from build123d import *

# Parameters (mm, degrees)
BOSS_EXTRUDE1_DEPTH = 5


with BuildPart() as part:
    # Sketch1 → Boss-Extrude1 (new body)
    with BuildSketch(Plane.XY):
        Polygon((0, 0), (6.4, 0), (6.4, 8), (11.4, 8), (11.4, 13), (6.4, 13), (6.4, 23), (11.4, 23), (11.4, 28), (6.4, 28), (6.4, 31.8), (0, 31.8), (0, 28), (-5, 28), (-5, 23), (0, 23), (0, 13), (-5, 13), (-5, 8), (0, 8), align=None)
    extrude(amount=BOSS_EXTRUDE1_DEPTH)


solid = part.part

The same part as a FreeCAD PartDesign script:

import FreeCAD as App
import Part
import Sketcher

V = App.Vector

doc = App.newDocument("Part")
body = doc.addObject("PartDesign::Body", "Body")

# Sketch on XY plane
sketch1 = body.newObject("Sketcher::SketchObject", "Sketch")
sketch1.AttachmentSupport = (doc.getObject("XY_Plane"), [""])
sketch1.MapMode = "FlatFace"
sketch1.addGeometry(Part.LineSegment(V(0, 0, 0), V(6.4, 0, 0)), False)
sketch1.addGeometry(Part.LineSegment(V(6.4, 0, 0), V(6.4, 8, 0)), False)
sketch1.addGeometry(Part.LineSegment(V(6.4, 8, 0), V(11.4, 8, 0)), False)
sketch1.addGeometry(Part.LineSegment(V(11.4, 8, 0), V(11.4, 13, 0)), False)
sketch1.addGeometry(Part.LineSegment(V(11.4, 13, 0), V(6.4, 13, 0)), False)
sketch1.addGeometry(Part.LineSegment(V(6.4, 13, 0), V(6.4, 23, 0)), False)
sketch1.addGeometry(Part.LineSegment(V(6.4, 23, 0), V(11.4, 23, 0)), False)
sketch1.addGeometry(Part.LineSegment(V(11.4, 23, 0), V(11.4, 28, 0)), False)
sketch1.addGeometry(Part.LineSegment(V(11.4, 28, 0), V(6.4, 28, 0)), False)
sketch1.addGeometry(Part.LineSegment(V(6.4, 28, 0), V(6.4, 31.8, 0)), False)
sketch1.addGeometry(Part.LineSegment(V(6.4, 31.8, 0), V(0, 31.8, 0)), False)
sketch1.addGeometry(Part.LineSegment(V(0, 31.8, 0), V(0, 28, 0)), False)
sketch1.addGeometry(Part.LineSegment(V(0, 28, 0), V(-5, 28, 0)), False)
sketch1.addGeometry(Part.LineSegment(V(-5, 28, 0), V(-5, 23, 0)), False)
sketch1.addGeometry(Part.LineSegment(V(-5, 23, 0), V(0, 23, 0)), False)
sketch1.addGeometry(Part.LineSegment(V(0, 23, 0), V(0, 13, 0)), False)
sketch1.addGeometry(Part.LineSegment(V(0, 13, 0), V(-5, 13, 0)), False)
sketch1.addGeometry(Part.LineSegment(V(-5, 13, 0), V(-5, 8, 0)), False)
sketch1.addGeometry(Part.LineSegment(V(-5, 8, 0), V(0, 8, 0)), False)
sketch1.addGeometry(Part.LineSegment(V(0, 8, 0), V(0, 0, 0)), False)
sketch1.addConstraint(Sketcher.Constraint("Coincident", 0, 2, 1, 1))
sketch1.addConstraint(Sketcher.Constraint("Coincident", 1, 2, 2, 1))
sketch1.addConstraint(Sketcher.Constraint("Coincident", 2, 2, 3, 1))
sketch1.addConstraint(Sketcher.Constraint("Coincident", 3, 2, 4, 1))
sketch1.addConstraint(Sketcher.Constraint("Coincident", 4, 2, 5, 1))
sketch1.addConstraint(Sketcher.Constraint("Coincident", 5, 2, 6, 1))
sketch1.addConstraint(Sketcher.Constraint("Coincident", 6, 2, 7, 1))
sketch1.addConstraint(Sketcher.Constraint("Coincident", 7, 2, 8, 1))
sketch1.addConstraint(Sketcher.Constraint("Coincident", 8, 2, 9, 1))
sketch1.addConstraint(Sketcher.Constraint("Coincident", 9, 2, 10, 1))
sketch1.addConstraint(Sketcher.Constraint("Coincident", 10, 2, 11, 1))
sketch1.addConstraint(Sketcher.Constraint("Coincident", 11, 2, 12, 1))
sketch1.addConstraint(Sketcher.Constraint("Coincident", 12, 2, 13, 1))
sketch1.addConstraint(Sketcher.Constraint("Coincident", 13, 2, 14, 1))
sketch1.addConstraint(Sketcher.Constraint("Coincident", 14, 2, 15, 1))
sketch1.addConstraint(Sketcher.Constraint("Coincident", 15, 2, 16, 1))
sketch1.addConstraint(Sketcher.Constraint("Coincident", 16, 2, 17, 1))
sketch1.addConstraint(Sketcher.Constraint("Coincident", 17, 2, 18, 1))
sketch1.addConstraint(Sketcher.Constraint("Coincident", 18, 2, 19, 1))
sketch1.addConstraint(Sketcher.Constraint("Coincident", 19, 2, 0, 1))
sketch1.addConstraint(Sketcher.Constraint("Horizontal", 0))
sketch1.addConstraint(Sketcher.Constraint("Vertical", 1))
sketch1.addConstraint(Sketcher.Constraint("Horizontal", 2))
sketch1.addConstraint(Sketcher.Constraint("Vertical", 3))
sketch1.addConstraint(Sketcher.Constraint("Horizontal", 4))
sketch1.addConstraint(Sketcher.Constraint("Vertical", 5))
sketch1.addConstraint(Sketcher.Constraint("Horizontal", 6))
sketch1.addConstraint(Sketcher.Constraint("Vertical", 7))
sketch1.addConstraint(Sketcher.Constraint("Horizontal", 8))
sketch1.addConstraint(Sketcher.Constraint("Vertical", 9))
sketch1.addConstraint(Sketcher.Constraint("Horizontal", 10))
sketch1.addConstraint(Sketcher.Constraint("Vertical", 11))
sketch1.addConstraint(Sketcher.Constraint("Horizontal", 12))
sketch1.addConstraint(Sketcher.Constraint("Vertical", 13))
sketch1.addConstraint(Sketcher.Constraint("Horizontal", 14))
sketch1.addConstraint(Sketcher.Constraint("Vertical", 15))
sketch1.addConstraint(Sketcher.Constraint("Horizontal", 16))
sketch1.addConstraint(Sketcher.Constraint("Vertical", 17))
sketch1.addConstraint(Sketcher.Constraint("Horizontal", 18))
sketch1.addConstraint(Sketcher.Constraint("Vertical", 19))
sketch1.addConstraint(Sketcher.Constraint("Coincident", 19, 2, -1, 1))
sketch1.addConstraint(Sketcher.Constraint("PointOnObject", 10, 2, -2))
sketch1.addConstraint(Sketcher.Constraint("PointOnObject", 14, 2, -2))
sketch1.addConstraint(Sketcher.Constraint("Horizontal", 8, 2, 11, 2))
sketch1.addConstraint(Sketcher.Constraint("Horizontal", 6, 2, 13, 2))
sketch1.addConstraint(Sketcher.Constraint("Horizontal", 4, 2, 15, 2))
sketch1.addConstraint(Sketcher.Constraint("Horizontal", 2, 2, 17, 2))
sketch1.addConstraint(Sketcher.Constraint("Vertical", 1, 2, 4, 2))
sketch1.addConstraint(Sketcher.Constraint("Vertical", 3, 2, 6, 2))
sketch1.addConstraint(Sketcher.Constraint("Vertical", 5, 2, 8, 2))
sketch1.addConstraint(Sketcher.Constraint("Vertical", 13, 2, 16, 2))
sketch1.addConstraint(Sketcher.Constraint("Equal", 8, 12))
sketch1.addConstraint(Sketcher.Constraint("Equal", 18, 3))
sketch1.addConstraint(Sketcher.Constraint("Equal", 3, 7))
sketch1.addConstraint(Sketcher.Constraint("DistanceX", 2, 1, 2, 2, 5.0))
sketch1.addConstraint(Sketcher.Constraint("DistanceY", 1, 1, 1, 2, 8.0))
sketch1.addConstraint(Sketcher.Constraint("DistanceY", 5, 1, 5, 2, 10.0))
sketch1.addConstraint(Sketcher.Constraint("DistanceX", 0, 1, 0, 2, 6.4))
sketch1.addConstraint(Sketcher.Constraint("DistanceY", 9, 1, 9, 2, 3.8))
pad1 = body.newObject("PartDesign::Pad", "Pad")
pad1.Profile = sketch1
pad1.Length = 5

doc.recompute()
